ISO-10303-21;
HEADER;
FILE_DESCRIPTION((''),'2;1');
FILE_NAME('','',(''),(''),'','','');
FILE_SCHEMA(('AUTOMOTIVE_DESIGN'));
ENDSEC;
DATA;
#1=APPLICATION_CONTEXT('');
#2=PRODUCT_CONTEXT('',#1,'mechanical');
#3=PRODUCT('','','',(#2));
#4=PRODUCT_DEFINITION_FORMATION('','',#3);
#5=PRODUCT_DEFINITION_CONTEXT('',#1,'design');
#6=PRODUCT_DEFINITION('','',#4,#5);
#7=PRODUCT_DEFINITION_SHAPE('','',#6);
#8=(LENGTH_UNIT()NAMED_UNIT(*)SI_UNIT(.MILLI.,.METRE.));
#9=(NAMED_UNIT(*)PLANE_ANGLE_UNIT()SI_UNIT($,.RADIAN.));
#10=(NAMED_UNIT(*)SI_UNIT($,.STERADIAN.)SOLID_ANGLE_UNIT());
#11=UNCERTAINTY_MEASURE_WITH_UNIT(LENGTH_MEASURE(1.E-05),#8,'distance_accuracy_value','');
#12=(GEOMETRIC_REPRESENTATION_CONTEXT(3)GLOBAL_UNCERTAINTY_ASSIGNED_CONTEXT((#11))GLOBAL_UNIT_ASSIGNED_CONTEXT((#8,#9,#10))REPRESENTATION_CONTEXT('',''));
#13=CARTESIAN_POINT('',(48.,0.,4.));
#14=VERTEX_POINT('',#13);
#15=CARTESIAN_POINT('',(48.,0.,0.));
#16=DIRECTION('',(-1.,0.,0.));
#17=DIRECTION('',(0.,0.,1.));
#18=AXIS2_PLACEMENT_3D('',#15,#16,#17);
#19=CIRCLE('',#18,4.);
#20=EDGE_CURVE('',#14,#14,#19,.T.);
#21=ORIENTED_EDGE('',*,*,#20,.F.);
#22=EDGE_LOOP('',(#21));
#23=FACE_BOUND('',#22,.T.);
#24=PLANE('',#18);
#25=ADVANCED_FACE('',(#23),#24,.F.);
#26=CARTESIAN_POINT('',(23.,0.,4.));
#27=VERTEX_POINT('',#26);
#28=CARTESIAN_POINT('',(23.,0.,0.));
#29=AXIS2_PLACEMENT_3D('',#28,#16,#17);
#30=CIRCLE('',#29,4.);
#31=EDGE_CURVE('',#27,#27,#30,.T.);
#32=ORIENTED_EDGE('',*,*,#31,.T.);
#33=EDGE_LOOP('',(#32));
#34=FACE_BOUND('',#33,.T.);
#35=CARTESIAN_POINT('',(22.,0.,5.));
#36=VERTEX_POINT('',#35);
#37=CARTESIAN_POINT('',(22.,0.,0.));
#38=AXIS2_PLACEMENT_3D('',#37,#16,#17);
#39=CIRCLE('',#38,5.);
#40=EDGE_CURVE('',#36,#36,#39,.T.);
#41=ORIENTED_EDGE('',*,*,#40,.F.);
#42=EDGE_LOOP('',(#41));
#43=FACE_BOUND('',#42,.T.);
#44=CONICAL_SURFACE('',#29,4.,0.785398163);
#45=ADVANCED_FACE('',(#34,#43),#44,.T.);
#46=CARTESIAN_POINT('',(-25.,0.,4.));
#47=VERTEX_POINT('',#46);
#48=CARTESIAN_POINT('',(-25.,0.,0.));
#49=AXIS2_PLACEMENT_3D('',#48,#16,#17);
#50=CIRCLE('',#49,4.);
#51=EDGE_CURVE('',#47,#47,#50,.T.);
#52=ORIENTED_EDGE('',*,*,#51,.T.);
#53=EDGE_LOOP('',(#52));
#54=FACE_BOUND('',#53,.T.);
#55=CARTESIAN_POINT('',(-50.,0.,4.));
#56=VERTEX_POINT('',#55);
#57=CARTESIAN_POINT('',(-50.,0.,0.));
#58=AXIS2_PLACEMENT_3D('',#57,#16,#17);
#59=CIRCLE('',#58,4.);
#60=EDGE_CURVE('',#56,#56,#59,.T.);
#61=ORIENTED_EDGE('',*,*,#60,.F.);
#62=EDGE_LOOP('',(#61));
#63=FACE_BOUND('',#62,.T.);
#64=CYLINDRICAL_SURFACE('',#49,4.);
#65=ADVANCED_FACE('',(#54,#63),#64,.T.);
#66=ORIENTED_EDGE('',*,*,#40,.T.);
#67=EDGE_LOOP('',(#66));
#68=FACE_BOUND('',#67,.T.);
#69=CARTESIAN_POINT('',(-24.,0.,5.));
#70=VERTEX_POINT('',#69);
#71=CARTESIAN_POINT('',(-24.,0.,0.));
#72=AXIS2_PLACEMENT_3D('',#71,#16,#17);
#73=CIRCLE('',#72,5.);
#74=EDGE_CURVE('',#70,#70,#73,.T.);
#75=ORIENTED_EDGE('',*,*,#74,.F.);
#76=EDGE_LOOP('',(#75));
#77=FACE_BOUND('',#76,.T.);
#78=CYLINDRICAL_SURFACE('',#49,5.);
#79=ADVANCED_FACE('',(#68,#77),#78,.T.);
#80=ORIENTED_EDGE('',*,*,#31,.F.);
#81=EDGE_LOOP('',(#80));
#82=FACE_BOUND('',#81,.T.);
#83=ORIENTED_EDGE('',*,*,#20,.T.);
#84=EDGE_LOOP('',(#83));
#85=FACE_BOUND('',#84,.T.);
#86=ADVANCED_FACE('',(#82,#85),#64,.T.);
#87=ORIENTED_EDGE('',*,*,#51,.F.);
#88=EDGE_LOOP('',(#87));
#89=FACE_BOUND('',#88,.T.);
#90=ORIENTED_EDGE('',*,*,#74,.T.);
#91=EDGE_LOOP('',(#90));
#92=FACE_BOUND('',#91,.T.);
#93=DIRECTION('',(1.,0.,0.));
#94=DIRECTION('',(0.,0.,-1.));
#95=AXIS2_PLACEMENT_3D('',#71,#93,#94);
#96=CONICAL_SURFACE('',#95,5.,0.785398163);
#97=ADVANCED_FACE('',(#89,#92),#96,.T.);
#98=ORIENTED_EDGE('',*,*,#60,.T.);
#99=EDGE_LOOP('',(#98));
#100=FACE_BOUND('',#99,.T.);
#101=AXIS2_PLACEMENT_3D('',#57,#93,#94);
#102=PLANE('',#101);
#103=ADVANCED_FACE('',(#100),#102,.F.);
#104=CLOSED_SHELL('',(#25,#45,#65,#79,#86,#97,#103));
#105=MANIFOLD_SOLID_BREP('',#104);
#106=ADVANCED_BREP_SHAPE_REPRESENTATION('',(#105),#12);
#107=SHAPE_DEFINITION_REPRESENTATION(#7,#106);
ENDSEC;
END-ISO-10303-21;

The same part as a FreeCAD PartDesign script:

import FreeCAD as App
import Part
import Sketcher
from FreeCAD import Vector

doc = App.newDocument("Part")
body = doc.addObject("PartDesign::Body", "Body")

# Sketch on XZ plane
sketch1 = body.newObject("Sketcher::SketchObject", "Sketch")
sketch1.AttachmentSupport = (doc.getObject("XZ_Plane"), [""])
sketch1.MapMode = "FlatFace"
sketch1.addGeometry(Part.LineSegment(Vector(48, 0, 0), Vector(48, -4, 0)), False)
sketch1.addGeometry(Part.LineSegment(Vector(48, -4, 0), Vector(23, -4, 0)), False)
sketch1.addGeometry(Part.LineSegment(Vector(23, -4, 0), Vector(22, -5, 0)), False)
sketch1.addGeometry(Part.LineSegment(Vector(22, -5, 0), Vector(-24, -5, 0)), False)
sketch1.addGeometry(Part.LineSegment(Vector(-24, -5, 0), Vector(-25, -4, 0)), False)
sketch1.addGeometry(Part.LineSegment(Vector(-25, -4, 0), Vector(-50, -4, 0)), False)
sketch1.addGeometry(Part.LineSegment(Vector(-50, -4, 0), Vector(-50, 0, 0)), False)
sketch1.addGeometry(Part.LineSegment(Vector(-50, 0, 0), Vector(48, 0, 0)), False)
sketch1.addConstraint(Sketcher.Constraint("Coincident", 0, 2, 1, 1))
sketch1.addConstraint(Sketcher.Constraint("Coincident", 1, 2, 2, 1))
sketch1.addConstraint(Sketcher.Constraint("Coincident", 2, 2, 3, 1))
sketch1.addConstraint(Sketcher.Constraint("Coincident", 3, 2, 4, 1))
sketch1.addConstraint(Sketcher.Constraint("Coincident", 4, 2, 5, 1))
sketch1.addConstraint(Sketcher.Constraint("Coincident", 5, 2, 6, 1))
sketch1.addConstraint(Sketcher.Constraint("Coincident", 6, 2, 7, 1))
sketch1.addConstraint(Sketcher.Constraint("Coincident", 7, 2, 0, 1))
sketch1.addConstraint(Sketcher.Constraint("Vertical", 0))
sketch1.addConstraint(Sketcher.Constraint("Horizontal", 1))
sketch1.addConstraint(Sketcher.Constraint("Horizontal", 3))
sketch1.addConstraint(Sketcher.Constraint("Horizontal", 5))
sketch1.addConstraint(Sketcher.Constraint("Vertical", 6))
sketch1.addConstraint(Sketcher.Constraint("Horizontal", 7))
sketch1.addConstraint(Sketcher.Constraint("PointOnObject", 6, 2, -1))
sketch1.addConstraint(Sketcher.Constraint("Perpendicular", 2, 4))
sketch1.addConstraint(Sketcher.Constraint("Horizontal", 1, 2, 4, 2))
sketch1.addConstraint(Sketcher.Constraint("Equal", 1, 5))
sketch1.addConstraint(Sketcher.Constraint("Equal", 2, 4))
sketch1.addConstraint(Sketcher.Constraint("DistanceX", 1, 2, 1, 1, 25.0))
sketch1.addConstraint(Sketcher.Constraint("DistanceX", 3, 2, 3, 1, 46.0))
sketch1.addConstraint(Sketcher.Constraint("DistanceX", 7, 1, 7, 2, 98.0))
sketch1.addConstraint(Sketcher.Constraint("DistanceY", 0, 2, 0, 1, 4.0))
sketch1.addConstraint(Sketcher.Constraint("DistanceX", -1, 1, 0, 2, 48.0))
revolution = body.newObject("PartDesign::Revolution", "Revolution")
revolution.Profile = sketch1
revolution.ReferenceAxis = (sketch1, ["H_Axis"])
revolution.Angle = 360

doc.recompute()
